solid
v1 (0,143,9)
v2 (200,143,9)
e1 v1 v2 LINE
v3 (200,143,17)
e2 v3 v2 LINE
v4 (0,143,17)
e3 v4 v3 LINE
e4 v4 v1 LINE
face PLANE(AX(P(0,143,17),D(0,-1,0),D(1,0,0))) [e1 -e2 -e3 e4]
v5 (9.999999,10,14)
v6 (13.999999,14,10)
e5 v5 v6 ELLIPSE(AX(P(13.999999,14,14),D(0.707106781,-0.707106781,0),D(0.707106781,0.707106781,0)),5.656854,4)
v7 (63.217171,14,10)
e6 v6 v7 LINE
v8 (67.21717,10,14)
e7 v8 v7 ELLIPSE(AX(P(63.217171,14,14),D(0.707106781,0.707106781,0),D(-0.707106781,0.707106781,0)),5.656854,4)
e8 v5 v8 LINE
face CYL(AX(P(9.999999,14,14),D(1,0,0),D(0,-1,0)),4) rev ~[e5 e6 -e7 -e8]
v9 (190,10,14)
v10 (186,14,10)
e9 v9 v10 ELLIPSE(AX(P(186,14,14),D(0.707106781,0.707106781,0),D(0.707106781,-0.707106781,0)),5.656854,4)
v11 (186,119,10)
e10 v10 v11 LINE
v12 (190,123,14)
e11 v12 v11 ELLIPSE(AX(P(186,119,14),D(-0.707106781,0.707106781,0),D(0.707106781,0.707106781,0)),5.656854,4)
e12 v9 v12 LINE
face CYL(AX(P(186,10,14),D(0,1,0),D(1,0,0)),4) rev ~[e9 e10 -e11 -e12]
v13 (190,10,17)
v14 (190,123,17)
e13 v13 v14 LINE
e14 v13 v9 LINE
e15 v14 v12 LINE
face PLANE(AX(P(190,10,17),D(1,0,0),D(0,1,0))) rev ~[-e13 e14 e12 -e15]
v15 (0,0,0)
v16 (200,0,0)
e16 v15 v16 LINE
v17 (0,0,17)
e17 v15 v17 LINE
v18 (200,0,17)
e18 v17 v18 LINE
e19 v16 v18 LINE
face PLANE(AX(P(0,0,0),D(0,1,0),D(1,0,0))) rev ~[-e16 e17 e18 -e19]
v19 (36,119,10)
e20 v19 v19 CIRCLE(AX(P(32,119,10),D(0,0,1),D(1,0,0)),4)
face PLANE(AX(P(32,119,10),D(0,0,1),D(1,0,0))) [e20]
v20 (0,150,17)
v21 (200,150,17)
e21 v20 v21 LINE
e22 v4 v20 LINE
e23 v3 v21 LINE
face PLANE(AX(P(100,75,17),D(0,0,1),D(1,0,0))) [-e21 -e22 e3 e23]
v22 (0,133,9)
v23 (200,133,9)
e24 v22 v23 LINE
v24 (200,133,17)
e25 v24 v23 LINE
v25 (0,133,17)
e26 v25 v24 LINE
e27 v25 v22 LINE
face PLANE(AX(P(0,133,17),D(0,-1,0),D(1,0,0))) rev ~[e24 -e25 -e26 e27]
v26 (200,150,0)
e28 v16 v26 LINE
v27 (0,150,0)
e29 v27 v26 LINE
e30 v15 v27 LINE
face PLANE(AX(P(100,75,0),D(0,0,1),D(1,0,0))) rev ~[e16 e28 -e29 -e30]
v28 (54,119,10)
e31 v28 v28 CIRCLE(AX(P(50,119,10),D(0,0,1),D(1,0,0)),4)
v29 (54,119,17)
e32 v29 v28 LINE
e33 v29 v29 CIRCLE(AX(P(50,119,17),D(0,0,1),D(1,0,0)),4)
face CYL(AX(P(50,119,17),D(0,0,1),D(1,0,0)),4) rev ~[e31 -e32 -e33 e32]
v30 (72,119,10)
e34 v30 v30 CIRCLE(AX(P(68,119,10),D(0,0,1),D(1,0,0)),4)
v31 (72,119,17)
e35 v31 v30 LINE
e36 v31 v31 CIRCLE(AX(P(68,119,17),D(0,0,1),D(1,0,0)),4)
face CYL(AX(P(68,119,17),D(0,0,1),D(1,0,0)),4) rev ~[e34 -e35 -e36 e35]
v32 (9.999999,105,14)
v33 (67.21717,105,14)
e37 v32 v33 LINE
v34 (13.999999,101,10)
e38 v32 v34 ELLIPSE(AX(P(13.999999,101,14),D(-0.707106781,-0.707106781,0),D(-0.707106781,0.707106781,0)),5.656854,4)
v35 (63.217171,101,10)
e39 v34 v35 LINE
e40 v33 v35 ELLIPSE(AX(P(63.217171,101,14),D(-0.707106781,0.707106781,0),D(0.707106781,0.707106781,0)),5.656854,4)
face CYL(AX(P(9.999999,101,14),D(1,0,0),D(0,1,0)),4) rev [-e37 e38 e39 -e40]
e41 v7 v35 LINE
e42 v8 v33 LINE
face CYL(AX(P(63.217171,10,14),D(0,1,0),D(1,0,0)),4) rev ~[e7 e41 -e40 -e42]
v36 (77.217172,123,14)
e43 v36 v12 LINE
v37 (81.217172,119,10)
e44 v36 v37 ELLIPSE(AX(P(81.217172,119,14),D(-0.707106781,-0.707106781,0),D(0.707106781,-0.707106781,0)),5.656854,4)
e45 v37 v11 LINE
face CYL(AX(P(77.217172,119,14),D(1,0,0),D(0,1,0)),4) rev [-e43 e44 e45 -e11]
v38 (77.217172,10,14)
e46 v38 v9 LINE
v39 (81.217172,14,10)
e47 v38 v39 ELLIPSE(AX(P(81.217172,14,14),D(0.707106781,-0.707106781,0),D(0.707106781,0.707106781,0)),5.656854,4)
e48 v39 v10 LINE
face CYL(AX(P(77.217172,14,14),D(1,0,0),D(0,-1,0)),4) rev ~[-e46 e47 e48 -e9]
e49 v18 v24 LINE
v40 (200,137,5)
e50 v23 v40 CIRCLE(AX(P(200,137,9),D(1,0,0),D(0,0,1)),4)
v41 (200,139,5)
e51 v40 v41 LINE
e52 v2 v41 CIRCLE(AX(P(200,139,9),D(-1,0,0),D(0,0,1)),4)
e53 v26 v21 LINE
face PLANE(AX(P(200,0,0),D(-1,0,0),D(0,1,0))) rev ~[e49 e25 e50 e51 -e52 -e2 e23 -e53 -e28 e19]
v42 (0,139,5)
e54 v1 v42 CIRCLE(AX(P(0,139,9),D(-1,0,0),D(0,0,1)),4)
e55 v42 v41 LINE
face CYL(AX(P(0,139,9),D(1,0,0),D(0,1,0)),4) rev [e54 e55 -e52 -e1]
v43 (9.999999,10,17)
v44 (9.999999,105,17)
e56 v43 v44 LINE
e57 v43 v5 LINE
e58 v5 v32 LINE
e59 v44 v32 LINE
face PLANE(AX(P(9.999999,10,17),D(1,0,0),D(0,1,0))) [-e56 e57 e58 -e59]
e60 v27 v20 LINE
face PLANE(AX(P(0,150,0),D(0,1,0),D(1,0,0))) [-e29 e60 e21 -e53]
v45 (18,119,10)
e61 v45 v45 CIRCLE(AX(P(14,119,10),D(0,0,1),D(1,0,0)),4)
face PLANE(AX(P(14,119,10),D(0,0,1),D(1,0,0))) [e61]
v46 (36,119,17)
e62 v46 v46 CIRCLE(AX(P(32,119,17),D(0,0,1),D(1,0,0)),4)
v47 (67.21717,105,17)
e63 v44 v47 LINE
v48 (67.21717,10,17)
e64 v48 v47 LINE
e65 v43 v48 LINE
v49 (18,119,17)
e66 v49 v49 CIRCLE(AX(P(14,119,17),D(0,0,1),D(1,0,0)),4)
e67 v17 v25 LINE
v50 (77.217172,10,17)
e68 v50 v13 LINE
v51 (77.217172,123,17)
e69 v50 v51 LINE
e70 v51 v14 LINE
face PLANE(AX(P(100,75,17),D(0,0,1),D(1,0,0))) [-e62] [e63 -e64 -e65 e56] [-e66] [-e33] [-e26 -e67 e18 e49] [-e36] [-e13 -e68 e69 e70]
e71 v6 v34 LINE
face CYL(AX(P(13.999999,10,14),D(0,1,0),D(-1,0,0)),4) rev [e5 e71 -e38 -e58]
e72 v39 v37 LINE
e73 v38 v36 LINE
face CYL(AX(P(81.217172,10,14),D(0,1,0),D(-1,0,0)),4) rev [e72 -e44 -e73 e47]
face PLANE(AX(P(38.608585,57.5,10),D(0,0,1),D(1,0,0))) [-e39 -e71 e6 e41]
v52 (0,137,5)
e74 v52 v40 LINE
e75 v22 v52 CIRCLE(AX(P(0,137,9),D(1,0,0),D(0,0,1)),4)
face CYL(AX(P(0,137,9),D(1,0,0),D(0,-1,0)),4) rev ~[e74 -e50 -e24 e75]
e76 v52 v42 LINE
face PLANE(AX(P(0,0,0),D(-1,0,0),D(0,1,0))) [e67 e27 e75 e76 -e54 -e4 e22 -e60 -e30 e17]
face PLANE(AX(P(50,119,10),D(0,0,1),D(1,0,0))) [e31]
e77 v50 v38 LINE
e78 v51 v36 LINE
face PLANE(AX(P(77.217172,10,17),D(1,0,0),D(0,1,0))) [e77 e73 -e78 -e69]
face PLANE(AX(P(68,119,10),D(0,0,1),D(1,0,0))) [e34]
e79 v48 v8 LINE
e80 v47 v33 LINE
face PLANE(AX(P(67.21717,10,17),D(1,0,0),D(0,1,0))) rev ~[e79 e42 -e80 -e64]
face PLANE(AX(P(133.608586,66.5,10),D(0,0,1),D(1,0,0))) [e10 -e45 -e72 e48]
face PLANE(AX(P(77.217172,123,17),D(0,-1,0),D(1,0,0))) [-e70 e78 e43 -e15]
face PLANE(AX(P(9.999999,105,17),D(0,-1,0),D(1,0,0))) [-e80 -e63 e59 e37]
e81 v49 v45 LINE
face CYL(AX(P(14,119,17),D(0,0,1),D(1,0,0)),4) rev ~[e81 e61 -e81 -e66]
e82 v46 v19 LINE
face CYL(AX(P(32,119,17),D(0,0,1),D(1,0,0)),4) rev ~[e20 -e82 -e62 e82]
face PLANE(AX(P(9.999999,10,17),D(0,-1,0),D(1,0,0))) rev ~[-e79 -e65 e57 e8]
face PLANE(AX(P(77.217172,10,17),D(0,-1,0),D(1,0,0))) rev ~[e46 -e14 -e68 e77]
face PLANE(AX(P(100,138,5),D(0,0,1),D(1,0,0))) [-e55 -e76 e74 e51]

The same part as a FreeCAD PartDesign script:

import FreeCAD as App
import Part
import Sketcher
from FreeCAD import Vector
Q = App.Units.Quantity


def edges_at(feature, points):
    """Names of the edges that pass closest to the given points."""
    edges = feature.Shape.Edges
    near = lambda p: min(range(len(edges)), key=lambda i: edges[i].distToShape(Part.Vertex(*p))[0])
    return sorted({f"Edge{near(p) + 1}" for p in points})

doc = App.newDocument("Part")
params = doc.addObject("Spreadsheet::Sheet", "Params")
for row, (alias, value) in enumerate([
    ("sketch1_width", "200 mm"),
    ("sketch1_height", "150 mm"),
    ("pad1_length", "17 mm"),
    ("sketch2_width", "200 mm"),
    ("sketch2_height", "10 mm"),
    ("pocket1_length", "12 mm"),
    ("sketch3_diameter", "8 mm"),
    ("sketch3_height", "95 mm"),
    ("sketch3_height2", "113 mm"),
    ("pocket2_length", "7 mm"),
    ("fillet_radius", "4 mm"),
    ("fillet2_radius", "4 mm"),
    ("fillet3_radius", "4 mm"),
], start=1):
    params.set(f"A{row}", alias)
    params.set(f"B{row}", "=" + value)
    params.setAlias(f"B{row}", alias)

body = doc.addObject("PartDesign::Body", "Body")

sketch1 = body.newObject("Sketcher::SketchObject", "Sketch")
sketch1.AttachmentSupport = (doc.getObject("XY_Plane"), [""])
sketch1.MapMode = "FlatFace"
sketch1.addGeometry([
    Part.LineSegment(Vector(0, 150, 0), Vector(0, 0, 0)),
    Part.LineSegment(Vector(0, 0, 0), Vector(200, 0, 0)),
    Part.LineSegment(Vector(200, 0, 0), Vector(200, 150, 0)),
    Part.LineSegment(Vector(200, 150, 0), Vector(0, 150, 0)),
], False)
sketch1.addConstraint([
    Sketcher.Constraint("Coincident", 0, 2, 1, 1),
    Sketcher.Constraint("Coincident", 1, 2, 2, 1),
    Sketcher.Constraint("Coincident", 2, 2, 3, 1),
    Sketcher.Constraint("Coincident", 3, 2, 0, 1),
    Sketcher.Constraint("Vertical", 0),
    Sketcher.Constraint("Horizontal", 1),
    Sketcher.Constraint("Vertical", 2),
    Sketcher.Constraint("Horizontal", 3),
    Sketcher.Constraint("Coincident", 0, 2, -1, 1),
    Sketcher.Constraint("DistanceX", 1, 1, 1, 2, Q("200 mm")),
    Sketcher.Constraint("DistanceY", 0, 2, 0, 1, Q("150 mm")),
])
sketch1.setExpression("Constraints[9]", "Params.sketch1_width")
sketch1.setExpression("Constraints[10]", "Params.sketch1_height")
pad1 = body.newObject("PartDesign::Pad", "Pad")
pad1.Profile = sketch1
pad1.setExpression("Length", "Params.pad1_length")

sketch2 = body.newObject("Sketcher::SketchObject", "Sketch001")
sketch2.AttachmentSupport = (doc.getObject("XY_Plane"), [""])
sketch2.MapMode = "FlatFace"
sketch2.AttachmentOffset = App.Placement(Vector(0, 0, 17), App.Rotation())
sketch2.addGeometry([
    Part.LineSegment(Vector(0, 143, 0), Vector(0, 133, 0)),
    Part.LineSegment(Vector(0, 133, 0), Vector(200, 133, 0)),
    Part.LineSegment(Vector(200, 133, 0), Vector(200, 143, 0)),
    Part.LineSegment(Vector(200, 143, 0), Vector(0, 143, 0)),
], False)
sketch2.addConstraint([
    Sketcher.Constraint("Coincident", 0, 2, 1, 1),
    Sketcher.Constraint("Coincident", 1, 2, 2, 1),
    Sketcher.Constraint("Coincident", 2, 2, 3, 1),
    Sketcher.Constraint("Coincident", 3, 2, 0, 1),
    Sketcher.Constraint("Vertical", 0),
    Sketcher.Constraint("Horizontal", 1),
    Sketcher.Constraint("Vertical", 2),
    Sketcher.Constraint("Horizontal", 3),
    Sketcher.Constraint("PointOnObject", 0, 2, -2),
    Sketcher.Constraint("DistanceX", 1, 1, 1, 2, Q("200 mm")),
    Sketcher.Constraint("DistanceY", 0, 2, 0, 1, Q("10 mm")),
    Sketcher.Constraint("DistanceY", -1, 1, 0, 2, Q("133 mm")),
])
sketch2.setExpression("Constraints[9]", "Params.sketch2_width")
sketch2.setExpression("Constraints[10]", "Params.sketch2_height")
pocket1 = body.newObject("PartDesign::Pocket", "Pocket")
pocket1.Profile = sketch2
pocket1.setExpression("Length", "Params.pocket1_length")

sketch3 = body.newObject("Sketcher::SketchObject", "Sketch002")
sketch3.AttachmentSupport = (doc.getObject("XY_Plane"), [""])
sketch3.MapMode = "FlatFace"
sketch3.AttachmentOffset = App.Placement(Vector(0, 0, 17), App.Rotation())
sketch3.addGeometry([
    Part.Circle(Vector(14, 119, 0), Vector(0, 0, 1), 4),
    Part.Circle(Vector(32, 119, 0), Vector(0, 0, 1), 4),
    Part.Circle(Vector(50, 119, 0), Vector(0, 0, 1), 4),
    Part.Circle(Vector(68, 119, 0), Vector(0, 0, 1), 4),
    Part.LineSegment(Vector(10, 105, 0), Vector(10, 10, 0)),
    Part.LineSegment(Vector(10, 10, 0), Vector(67.2, 10, 0)),
    Part.LineSegment(Vector(67.2, 10, 0), Vector(67.2, 105, 0)),
    Part.LineSegment(Vector(67.2, 105, 0), Vector(10, 105, 0)),
    Part.LineSegment(Vector(77.2, 123, 0), Vector(77.2, 10, 0)),
    Part.LineSegment(Vector(77.2, 10, 0), Vector(190, 10, 0)),
    Part.LineSegment(Vector(190, 10, 0), Vector(190, 123, 0)),
    Part.LineSegment(Vector(190, 123, 0), Vector(77.2, 123, 0)),
], False)
sketch3.addConstraint([
    Sketcher.Constraint("Coincident", 4, 2, 5, 1),
    Sketcher.Constraint("Coincident", 5, 2, 6, 1),
    Sketcher.Constraint("Coincident", 6, 2, 7, 1),
    Sketcher.Constraint("Coincident", 7, 2, 4, 1),
    Sketcher.Constraint("Coincident", 8, 2, 9, 1),
    Sketcher.Constraint("Coincident", 9, 2, 10, 1),
    Sketcher.Constraint("Coincident", 10, 2, 11, 1),
    Sketcher.Constraint("Coincident", 11, 2, 8, 1),
    Sketcher.Constraint("Vertical", 4),
    Sketcher.Constraint("Horizontal", 5),
    Sketcher.Constraint("Vertical", 6),
    Sketcher.Constraint("Horizontal", 7),
    Sketcher.Constraint("Vertical", 8),
    Sketcher.Constraint("Horizontal", 9),
    Sketcher.Constraint("Vertical", 10),
    Sketcher.Constraint("Horizontal", 11),
    Sketcher.Constraint("Equal", 0, 1),
    Sketcher.Constraint("Equal", 1, 2),
    Sketcher.Constraint("Equal", 2, 3),
    Sketcher.Constraint("Horizontal", 0, 3, 1, 3),
    Sketcher.Constraint("Horizontal", 1, 3, 2, 3),
    Sketcher.Constraint("Horizontal", 2, 3, 3, 3),
    Sketcher.Constraint("Horizontal", 5, 2, 8, 2),
    Sketcher.Constraint("Diameter", 0, Q("8 mm")),
    Sketcher.Constraint("DistanceY", 4, 2, 4, 1, Q("95 mm")),
    Sketcher.Constraint("DistanceY", 8, 2, 8, 1, Q("113 mm")),
    Sketcher.Constraint("DistanceX", -1, 1, 0, 3, Q("14 mm")),
    Sketcher.Constraint("DistanceY", -1, 1, 0, 3, Q("119 mm")),
    Sketcher.Constraint("DistanceX", -1, 1, 1, 3, Q("32 mm")),
    Sketcher.Constraint("DistanceX", -1, 1, 2, 3, Q("50 mm")),
    Sketcher.Constraint("DistanceX", -1, 1, 3, 3, Q("68 mm")),
    Sketcher.Constraint("DistanceX", -1, 1, 4, 2, Q("9.999999 mm")),
    Sketcher.Constraint("DistanceY", -1, 1, 4, 2, Q("10 mm")),
    Sketcher.Constraint("DistanceX", -1, 1, 9, 2, Q("190 mm")),
    Sketcher.Constraint("DistanceX", 5, 2, 8, 2, Q("10.000001 mm")),
    Sketcher.Constraint("DistanceX", 5, 1, 5, 2, Q("57.217171 mm")),
])
sketch3.setExpression("Constraints[23]", "Params.sketch3_diameter")
sketch3.setExpression("Constraints[24]", "Params.sketch3_height")
sketch3.setExpression("Constraints[25]", "Params.sketch3_height2")
pocket2 = body.newObject("PartDesign::Pocket", "Pocket001")
pocket2.Profile = sketch3
pocket2.setExpression("Length", "Params.pocket2_length")
doc.recompute()

fillet = body.newObject("PartDesign::Fillet", "Fillet")
fillet.Base = (pocket2, edges_at(pocket2, [
    (133.609, 123, 10),
    (77.217, 66.5, 10),
    (133.609, 10, 10),
    (190, 66.5, 10),
]))
fillet.setExpression("Radius", "Params.fillet_radius")
doc.recompute()

fillet2 = body.newObject("PartDesign::Fillet", "Fillet001")
fillet2.Base = (fillet, edges_at(fillet, [(100, 143, 5), (100, 133, 5)]))
fillet2.setExpression("Radius", "Params.fillet2_radius")
doc.recompute()

fillet3 = body.newObject("PartDesign::Fillet", "Fillet002")
fillet3.Base = (fillet2, edges_at(fillet2, [
    (10, 57.5, 10),
    (38.609, 105, 10),
    (67.217, 57.5, 10),
    (38.609, 10, 10),
]))
fillet3.setExpression("Radius", "Params.fillet3_radius")

doc.recompute()
